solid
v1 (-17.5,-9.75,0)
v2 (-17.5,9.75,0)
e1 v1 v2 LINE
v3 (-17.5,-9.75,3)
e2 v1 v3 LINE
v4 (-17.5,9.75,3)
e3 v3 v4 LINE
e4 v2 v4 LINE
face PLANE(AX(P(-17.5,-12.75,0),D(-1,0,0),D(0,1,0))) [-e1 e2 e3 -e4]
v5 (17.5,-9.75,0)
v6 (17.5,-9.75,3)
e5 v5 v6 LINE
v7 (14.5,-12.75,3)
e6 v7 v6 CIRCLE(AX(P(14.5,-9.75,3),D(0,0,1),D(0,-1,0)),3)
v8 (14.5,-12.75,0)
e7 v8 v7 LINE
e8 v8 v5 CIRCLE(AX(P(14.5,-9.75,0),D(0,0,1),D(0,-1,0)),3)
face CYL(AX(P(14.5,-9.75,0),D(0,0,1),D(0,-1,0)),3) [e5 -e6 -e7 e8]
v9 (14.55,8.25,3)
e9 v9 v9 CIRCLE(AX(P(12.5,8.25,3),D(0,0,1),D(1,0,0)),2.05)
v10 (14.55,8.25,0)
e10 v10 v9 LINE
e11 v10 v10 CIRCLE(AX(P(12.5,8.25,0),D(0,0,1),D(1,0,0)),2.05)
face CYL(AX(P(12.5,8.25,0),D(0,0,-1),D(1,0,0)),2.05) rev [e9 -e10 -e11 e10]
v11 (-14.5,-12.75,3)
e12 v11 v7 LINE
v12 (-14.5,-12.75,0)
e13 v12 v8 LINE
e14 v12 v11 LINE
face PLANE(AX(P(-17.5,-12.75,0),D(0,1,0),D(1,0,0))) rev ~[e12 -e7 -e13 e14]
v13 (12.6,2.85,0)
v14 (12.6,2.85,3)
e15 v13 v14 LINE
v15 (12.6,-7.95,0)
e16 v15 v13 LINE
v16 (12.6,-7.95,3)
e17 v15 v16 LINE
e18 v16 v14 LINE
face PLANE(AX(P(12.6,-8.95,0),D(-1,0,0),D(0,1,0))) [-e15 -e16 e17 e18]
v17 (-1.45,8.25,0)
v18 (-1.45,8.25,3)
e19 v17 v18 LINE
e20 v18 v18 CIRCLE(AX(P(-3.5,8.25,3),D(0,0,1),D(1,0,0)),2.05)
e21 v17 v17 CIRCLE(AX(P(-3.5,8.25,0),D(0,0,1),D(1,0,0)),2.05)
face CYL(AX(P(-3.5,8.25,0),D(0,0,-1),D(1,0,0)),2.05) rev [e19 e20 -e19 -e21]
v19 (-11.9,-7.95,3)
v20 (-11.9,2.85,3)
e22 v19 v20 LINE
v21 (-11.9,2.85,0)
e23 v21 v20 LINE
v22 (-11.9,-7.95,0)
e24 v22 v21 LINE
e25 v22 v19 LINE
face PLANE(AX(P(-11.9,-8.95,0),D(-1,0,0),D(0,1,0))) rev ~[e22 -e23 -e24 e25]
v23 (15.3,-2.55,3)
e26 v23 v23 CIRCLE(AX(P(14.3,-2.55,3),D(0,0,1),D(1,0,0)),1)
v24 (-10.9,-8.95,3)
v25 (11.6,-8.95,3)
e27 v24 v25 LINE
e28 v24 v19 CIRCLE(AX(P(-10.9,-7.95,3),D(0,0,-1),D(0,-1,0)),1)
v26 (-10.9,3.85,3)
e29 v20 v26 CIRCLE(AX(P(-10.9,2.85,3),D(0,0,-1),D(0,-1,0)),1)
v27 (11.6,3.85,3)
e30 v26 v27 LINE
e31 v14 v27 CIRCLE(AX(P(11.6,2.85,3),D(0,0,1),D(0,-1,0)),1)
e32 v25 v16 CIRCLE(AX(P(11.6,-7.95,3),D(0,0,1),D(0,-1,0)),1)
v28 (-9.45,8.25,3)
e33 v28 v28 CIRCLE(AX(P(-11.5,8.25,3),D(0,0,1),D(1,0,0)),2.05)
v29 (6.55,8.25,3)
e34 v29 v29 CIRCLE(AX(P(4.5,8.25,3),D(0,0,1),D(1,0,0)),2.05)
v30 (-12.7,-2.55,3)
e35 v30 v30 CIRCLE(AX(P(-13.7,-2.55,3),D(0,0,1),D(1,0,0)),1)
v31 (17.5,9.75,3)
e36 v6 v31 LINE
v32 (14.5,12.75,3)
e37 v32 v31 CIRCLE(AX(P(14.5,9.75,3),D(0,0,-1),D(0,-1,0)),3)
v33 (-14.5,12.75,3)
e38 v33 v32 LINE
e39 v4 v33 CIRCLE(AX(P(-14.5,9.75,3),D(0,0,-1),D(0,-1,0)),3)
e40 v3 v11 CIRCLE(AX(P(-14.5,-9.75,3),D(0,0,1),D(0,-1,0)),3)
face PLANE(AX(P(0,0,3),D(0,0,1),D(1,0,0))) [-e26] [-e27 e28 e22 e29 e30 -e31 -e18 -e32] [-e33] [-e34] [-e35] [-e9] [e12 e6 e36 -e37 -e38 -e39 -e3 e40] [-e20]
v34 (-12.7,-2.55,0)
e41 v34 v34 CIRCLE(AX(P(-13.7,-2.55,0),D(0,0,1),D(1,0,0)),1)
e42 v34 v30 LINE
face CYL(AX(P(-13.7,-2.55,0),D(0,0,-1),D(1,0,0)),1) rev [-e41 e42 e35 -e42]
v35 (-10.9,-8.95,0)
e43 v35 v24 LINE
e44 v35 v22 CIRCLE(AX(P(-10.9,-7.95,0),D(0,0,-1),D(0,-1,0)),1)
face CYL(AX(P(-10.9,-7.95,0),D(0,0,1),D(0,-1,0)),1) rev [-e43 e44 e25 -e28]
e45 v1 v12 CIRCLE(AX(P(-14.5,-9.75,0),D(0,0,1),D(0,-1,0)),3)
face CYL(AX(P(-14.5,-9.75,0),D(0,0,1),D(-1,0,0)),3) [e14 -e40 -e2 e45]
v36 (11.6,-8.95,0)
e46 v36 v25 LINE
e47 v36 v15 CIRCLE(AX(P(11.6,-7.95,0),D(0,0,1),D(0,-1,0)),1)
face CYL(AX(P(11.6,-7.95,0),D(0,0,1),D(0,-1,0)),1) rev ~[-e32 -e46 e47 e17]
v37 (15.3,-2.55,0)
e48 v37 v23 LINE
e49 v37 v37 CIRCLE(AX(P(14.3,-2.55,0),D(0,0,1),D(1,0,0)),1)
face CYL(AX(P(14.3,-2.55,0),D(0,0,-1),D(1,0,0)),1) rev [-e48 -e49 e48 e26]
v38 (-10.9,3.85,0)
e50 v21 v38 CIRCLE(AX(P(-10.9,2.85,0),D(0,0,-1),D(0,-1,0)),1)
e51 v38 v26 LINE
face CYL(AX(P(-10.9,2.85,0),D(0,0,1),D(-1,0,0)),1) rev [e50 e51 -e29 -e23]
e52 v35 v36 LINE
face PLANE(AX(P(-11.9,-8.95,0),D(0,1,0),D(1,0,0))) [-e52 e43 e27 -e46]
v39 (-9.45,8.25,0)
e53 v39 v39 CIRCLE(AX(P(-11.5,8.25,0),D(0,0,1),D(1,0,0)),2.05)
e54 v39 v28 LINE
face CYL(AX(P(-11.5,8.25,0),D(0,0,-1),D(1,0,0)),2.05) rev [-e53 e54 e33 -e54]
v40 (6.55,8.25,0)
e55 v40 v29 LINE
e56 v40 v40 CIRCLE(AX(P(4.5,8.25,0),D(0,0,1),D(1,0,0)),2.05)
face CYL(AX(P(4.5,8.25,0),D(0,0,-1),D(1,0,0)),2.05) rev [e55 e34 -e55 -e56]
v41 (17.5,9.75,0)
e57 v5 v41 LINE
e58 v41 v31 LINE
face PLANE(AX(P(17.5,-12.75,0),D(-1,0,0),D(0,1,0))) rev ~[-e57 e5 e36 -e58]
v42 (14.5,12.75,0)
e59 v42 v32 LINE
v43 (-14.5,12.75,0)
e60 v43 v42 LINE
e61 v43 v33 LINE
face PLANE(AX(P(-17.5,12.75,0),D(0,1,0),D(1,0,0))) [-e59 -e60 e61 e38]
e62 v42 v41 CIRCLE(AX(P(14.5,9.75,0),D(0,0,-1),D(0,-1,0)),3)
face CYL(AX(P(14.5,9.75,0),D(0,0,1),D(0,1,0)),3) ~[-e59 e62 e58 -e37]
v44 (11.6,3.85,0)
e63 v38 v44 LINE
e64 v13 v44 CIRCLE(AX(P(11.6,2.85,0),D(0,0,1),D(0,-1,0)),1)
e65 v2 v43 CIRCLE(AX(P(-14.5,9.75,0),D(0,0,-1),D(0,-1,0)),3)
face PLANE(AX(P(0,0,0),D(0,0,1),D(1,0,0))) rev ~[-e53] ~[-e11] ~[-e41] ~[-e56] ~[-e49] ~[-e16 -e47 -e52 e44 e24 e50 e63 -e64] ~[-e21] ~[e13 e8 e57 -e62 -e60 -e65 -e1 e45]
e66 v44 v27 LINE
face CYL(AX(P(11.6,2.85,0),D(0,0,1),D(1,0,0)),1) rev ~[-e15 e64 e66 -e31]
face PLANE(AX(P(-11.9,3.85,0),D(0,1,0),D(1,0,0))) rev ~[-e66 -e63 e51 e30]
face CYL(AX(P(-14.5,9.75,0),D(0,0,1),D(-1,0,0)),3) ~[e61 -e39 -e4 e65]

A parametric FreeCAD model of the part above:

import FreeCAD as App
import Part
import Sketcher

V = App.Vector
Q = App.Units.Quantity


def edges_at(feature, points):
    """Names of the edges that pass closest to the given points."""
    edges = feature.Shape.Edges
    near = lambda p: min(range(len(edges)), key=lambda i: edges[i].distToShape(Part.Vertex(*p))[0])
    return sorted({f"Edge{near(p) + 1}" for p in points})


def add_polygon(sketch, points):
    """Adds a closed chain of lines whose ends are joined by coincident constraints."""
    first, n = sketch.GeometryCount, len(points)
    for a, b in zip(points, points[1:] + points[:1]):
        sketch.addGeometry(Part.LineSegment(App.Vector(*a, 0), App.Vector(*b, 0)), False)
    for i in range(n):
        sketch.addConstraint(Sketcher.Constraint("Coincident", first + i, 2, first + (i + 1) % n, 1))

doc = App.newDocument("Part")
body = doc.addObject("PartDesign::Body", "Body")

# Sketch on XY plane
sketch1 = body.newObject("Sketcher::SketchObject", "Sketch")
sketch1.AttachmentSupport = (doc.getObject("XY_Plane"), [""])
sketch1.MapMode = "FlatFace"
add_polygon(sketch1, [(-17.5, 12.75), (-17.5, -12.75), (17.5, -12.75), (17.5, 12.75)])  # lines 0-3
sketch1.addGeometry(Part.Circle(V(-13.7, -2.55, 0), V(0, 0, 1), 1), False)  # 4
add_polygon(sketch1, [(12.6, -8.95), (-11.9, -8.95), (-11.9, 3.85), (12.6, 3.85)])  # lines 5-8
sketch1.addGeometry(Part.Circle(V(14.3, -2.55, 0), V(0, 0, 1), 1), False)  # 9
sketch1.addGeometry(Part.Circle(V(-11.5, 8.25, 0), V(0, 0, 1), 2.05), False)  # 10
sketch1.addGeometry(Part.Circle(V(-3.5, 8.25, 0), V(0, 0, 1), 2.05), False)  # 11
sketch1.addGeometry(Part.Circle(V(4.5, 8.25, 0), V(0, 0, 1), 2.05), False)  # 12
sketch1.addGeometry(Part.Circle(V(12.5, 8.25, 0), V(0, 0, 1), 2.05), False)  # 13
sketch1.addConstraint([
    Sketcher.Constraint("Vertical", 0),
    Sketcher.Constraint("Horizontal", 1),
    Sketcher.Constraint("Vertical", 2),
    Sketcher.Constraint("Horizontal", 3),
    Sketcher.Constraint("Horizontal", 5),
    Sketcher.Constraint("Vertical", 6),
    Sketcher.Constraint("Horizontal", 7),
    Sketcher.Constraint("Vertical", 8),
    Sketcher.Constraint("Equal", 4, 9),
    Sketcher.Constraint("Equal", 10, 11),
    Sketcher.Constraint("Equal", 11, 12),
    Sketcher.Constraint("Equal", 12, 13),
    Sketcher.Constraint("Symmetric", 0, 2, 2, 2, -1, 1),
    Sketcher.Constraint("Horizontal", 4, 3, 9, 3),
    Sketcher.Constraint("Horizontal", 10, 3, 11, 3),
    Sketcher.Constraint("Horizontal", 11, 3, 12, 3),
    Sketcher.Constraint("Horizontal", 12, 3, 13, 3),
    Sketcher.Constraint("Diameter", 4, Q("2 mm")),
    Sketcher.Constraint("Diameter", 10, Q("4.1 mm")),
    Sketcher.Constraint("DistanceX", 1, 1, 1, 2, Q("35 mm")),
    Sketcher.Constraint("DistanceX", 5, 2, 5, 1, Q("24.5 mm")),
    Sketcher.Constraint("DistanceY", 0, 2, 0, 1, Q("25.5 mm")),
    Sketcher.Constraint("DistanceY", 6, 1, 6, 2, Q("12.8 mm")),
    Sketcher.Constraint("DistanceX", 4, 3, 9, 3, Q("28 mm")),
    Sketcher.Constraint("DistanceX", 10, 3, 11, 3, Q("8 mm")),
    Sketcher.Constraint("DistanceX", 11, 3, 12, 3, Q("8 mm")),
    Sketcher.Constraint("DistanceX", 12, 3, 13, 3, Q("8 mm")),
    Sketcher.Constraint("DistanceX", 0, 2, 10, 3, Q("6 mm")),
    Sketcher.Constraint("DistanceY", 0, 2, 10, 3, Q("21 mm")),
    Sketcher.Constraint("DistanceX", 4, 3, -1, 1, Q("13.7 mm")),
    Sketcher.Constraint("DistanceX", 5, 2, -1, 1, Q("11.9 mm")),
    Sketcher.Constraint("DistanceY", 4, 3, 10, 3, Q("10.8 mm")),
    Sketcher.Constraint("DistanceY", 5, 2, 4, 3, Q("6.4 mm")),
])
pad1 = body.newObject("PartDesign::Pad", "Pad")
pad1.Profile = sketch1
pad1.Length = 3
doc.recompute()

fillet = body.newObject("PartDesign::Fillet", "Fillet")
fillet.Base = (pad1, edges_at(pad1, [
    (-17.5, 12.75, 1.5),
    (17.5, 12.75, 1.5),
    (17.5, -12.75, 1.5),
    (-17.5, -12.75, 1.5),
]))
fillet.Radius = 3
doc.recompute()

fillet2 = body.newObject("PartDesign::Fillet", "Fillet001")
fillet2.Base = (fillet, edges_at(fillet, [
    (-11.9, 3.85, 1.5),
    (12.6, 3.85, 1.5),
    (12.6, -8.95, 1.5),
    (-11.9, -8.95, 1.5),
]))
fillet2.Radius = 1

doc.recompute()
